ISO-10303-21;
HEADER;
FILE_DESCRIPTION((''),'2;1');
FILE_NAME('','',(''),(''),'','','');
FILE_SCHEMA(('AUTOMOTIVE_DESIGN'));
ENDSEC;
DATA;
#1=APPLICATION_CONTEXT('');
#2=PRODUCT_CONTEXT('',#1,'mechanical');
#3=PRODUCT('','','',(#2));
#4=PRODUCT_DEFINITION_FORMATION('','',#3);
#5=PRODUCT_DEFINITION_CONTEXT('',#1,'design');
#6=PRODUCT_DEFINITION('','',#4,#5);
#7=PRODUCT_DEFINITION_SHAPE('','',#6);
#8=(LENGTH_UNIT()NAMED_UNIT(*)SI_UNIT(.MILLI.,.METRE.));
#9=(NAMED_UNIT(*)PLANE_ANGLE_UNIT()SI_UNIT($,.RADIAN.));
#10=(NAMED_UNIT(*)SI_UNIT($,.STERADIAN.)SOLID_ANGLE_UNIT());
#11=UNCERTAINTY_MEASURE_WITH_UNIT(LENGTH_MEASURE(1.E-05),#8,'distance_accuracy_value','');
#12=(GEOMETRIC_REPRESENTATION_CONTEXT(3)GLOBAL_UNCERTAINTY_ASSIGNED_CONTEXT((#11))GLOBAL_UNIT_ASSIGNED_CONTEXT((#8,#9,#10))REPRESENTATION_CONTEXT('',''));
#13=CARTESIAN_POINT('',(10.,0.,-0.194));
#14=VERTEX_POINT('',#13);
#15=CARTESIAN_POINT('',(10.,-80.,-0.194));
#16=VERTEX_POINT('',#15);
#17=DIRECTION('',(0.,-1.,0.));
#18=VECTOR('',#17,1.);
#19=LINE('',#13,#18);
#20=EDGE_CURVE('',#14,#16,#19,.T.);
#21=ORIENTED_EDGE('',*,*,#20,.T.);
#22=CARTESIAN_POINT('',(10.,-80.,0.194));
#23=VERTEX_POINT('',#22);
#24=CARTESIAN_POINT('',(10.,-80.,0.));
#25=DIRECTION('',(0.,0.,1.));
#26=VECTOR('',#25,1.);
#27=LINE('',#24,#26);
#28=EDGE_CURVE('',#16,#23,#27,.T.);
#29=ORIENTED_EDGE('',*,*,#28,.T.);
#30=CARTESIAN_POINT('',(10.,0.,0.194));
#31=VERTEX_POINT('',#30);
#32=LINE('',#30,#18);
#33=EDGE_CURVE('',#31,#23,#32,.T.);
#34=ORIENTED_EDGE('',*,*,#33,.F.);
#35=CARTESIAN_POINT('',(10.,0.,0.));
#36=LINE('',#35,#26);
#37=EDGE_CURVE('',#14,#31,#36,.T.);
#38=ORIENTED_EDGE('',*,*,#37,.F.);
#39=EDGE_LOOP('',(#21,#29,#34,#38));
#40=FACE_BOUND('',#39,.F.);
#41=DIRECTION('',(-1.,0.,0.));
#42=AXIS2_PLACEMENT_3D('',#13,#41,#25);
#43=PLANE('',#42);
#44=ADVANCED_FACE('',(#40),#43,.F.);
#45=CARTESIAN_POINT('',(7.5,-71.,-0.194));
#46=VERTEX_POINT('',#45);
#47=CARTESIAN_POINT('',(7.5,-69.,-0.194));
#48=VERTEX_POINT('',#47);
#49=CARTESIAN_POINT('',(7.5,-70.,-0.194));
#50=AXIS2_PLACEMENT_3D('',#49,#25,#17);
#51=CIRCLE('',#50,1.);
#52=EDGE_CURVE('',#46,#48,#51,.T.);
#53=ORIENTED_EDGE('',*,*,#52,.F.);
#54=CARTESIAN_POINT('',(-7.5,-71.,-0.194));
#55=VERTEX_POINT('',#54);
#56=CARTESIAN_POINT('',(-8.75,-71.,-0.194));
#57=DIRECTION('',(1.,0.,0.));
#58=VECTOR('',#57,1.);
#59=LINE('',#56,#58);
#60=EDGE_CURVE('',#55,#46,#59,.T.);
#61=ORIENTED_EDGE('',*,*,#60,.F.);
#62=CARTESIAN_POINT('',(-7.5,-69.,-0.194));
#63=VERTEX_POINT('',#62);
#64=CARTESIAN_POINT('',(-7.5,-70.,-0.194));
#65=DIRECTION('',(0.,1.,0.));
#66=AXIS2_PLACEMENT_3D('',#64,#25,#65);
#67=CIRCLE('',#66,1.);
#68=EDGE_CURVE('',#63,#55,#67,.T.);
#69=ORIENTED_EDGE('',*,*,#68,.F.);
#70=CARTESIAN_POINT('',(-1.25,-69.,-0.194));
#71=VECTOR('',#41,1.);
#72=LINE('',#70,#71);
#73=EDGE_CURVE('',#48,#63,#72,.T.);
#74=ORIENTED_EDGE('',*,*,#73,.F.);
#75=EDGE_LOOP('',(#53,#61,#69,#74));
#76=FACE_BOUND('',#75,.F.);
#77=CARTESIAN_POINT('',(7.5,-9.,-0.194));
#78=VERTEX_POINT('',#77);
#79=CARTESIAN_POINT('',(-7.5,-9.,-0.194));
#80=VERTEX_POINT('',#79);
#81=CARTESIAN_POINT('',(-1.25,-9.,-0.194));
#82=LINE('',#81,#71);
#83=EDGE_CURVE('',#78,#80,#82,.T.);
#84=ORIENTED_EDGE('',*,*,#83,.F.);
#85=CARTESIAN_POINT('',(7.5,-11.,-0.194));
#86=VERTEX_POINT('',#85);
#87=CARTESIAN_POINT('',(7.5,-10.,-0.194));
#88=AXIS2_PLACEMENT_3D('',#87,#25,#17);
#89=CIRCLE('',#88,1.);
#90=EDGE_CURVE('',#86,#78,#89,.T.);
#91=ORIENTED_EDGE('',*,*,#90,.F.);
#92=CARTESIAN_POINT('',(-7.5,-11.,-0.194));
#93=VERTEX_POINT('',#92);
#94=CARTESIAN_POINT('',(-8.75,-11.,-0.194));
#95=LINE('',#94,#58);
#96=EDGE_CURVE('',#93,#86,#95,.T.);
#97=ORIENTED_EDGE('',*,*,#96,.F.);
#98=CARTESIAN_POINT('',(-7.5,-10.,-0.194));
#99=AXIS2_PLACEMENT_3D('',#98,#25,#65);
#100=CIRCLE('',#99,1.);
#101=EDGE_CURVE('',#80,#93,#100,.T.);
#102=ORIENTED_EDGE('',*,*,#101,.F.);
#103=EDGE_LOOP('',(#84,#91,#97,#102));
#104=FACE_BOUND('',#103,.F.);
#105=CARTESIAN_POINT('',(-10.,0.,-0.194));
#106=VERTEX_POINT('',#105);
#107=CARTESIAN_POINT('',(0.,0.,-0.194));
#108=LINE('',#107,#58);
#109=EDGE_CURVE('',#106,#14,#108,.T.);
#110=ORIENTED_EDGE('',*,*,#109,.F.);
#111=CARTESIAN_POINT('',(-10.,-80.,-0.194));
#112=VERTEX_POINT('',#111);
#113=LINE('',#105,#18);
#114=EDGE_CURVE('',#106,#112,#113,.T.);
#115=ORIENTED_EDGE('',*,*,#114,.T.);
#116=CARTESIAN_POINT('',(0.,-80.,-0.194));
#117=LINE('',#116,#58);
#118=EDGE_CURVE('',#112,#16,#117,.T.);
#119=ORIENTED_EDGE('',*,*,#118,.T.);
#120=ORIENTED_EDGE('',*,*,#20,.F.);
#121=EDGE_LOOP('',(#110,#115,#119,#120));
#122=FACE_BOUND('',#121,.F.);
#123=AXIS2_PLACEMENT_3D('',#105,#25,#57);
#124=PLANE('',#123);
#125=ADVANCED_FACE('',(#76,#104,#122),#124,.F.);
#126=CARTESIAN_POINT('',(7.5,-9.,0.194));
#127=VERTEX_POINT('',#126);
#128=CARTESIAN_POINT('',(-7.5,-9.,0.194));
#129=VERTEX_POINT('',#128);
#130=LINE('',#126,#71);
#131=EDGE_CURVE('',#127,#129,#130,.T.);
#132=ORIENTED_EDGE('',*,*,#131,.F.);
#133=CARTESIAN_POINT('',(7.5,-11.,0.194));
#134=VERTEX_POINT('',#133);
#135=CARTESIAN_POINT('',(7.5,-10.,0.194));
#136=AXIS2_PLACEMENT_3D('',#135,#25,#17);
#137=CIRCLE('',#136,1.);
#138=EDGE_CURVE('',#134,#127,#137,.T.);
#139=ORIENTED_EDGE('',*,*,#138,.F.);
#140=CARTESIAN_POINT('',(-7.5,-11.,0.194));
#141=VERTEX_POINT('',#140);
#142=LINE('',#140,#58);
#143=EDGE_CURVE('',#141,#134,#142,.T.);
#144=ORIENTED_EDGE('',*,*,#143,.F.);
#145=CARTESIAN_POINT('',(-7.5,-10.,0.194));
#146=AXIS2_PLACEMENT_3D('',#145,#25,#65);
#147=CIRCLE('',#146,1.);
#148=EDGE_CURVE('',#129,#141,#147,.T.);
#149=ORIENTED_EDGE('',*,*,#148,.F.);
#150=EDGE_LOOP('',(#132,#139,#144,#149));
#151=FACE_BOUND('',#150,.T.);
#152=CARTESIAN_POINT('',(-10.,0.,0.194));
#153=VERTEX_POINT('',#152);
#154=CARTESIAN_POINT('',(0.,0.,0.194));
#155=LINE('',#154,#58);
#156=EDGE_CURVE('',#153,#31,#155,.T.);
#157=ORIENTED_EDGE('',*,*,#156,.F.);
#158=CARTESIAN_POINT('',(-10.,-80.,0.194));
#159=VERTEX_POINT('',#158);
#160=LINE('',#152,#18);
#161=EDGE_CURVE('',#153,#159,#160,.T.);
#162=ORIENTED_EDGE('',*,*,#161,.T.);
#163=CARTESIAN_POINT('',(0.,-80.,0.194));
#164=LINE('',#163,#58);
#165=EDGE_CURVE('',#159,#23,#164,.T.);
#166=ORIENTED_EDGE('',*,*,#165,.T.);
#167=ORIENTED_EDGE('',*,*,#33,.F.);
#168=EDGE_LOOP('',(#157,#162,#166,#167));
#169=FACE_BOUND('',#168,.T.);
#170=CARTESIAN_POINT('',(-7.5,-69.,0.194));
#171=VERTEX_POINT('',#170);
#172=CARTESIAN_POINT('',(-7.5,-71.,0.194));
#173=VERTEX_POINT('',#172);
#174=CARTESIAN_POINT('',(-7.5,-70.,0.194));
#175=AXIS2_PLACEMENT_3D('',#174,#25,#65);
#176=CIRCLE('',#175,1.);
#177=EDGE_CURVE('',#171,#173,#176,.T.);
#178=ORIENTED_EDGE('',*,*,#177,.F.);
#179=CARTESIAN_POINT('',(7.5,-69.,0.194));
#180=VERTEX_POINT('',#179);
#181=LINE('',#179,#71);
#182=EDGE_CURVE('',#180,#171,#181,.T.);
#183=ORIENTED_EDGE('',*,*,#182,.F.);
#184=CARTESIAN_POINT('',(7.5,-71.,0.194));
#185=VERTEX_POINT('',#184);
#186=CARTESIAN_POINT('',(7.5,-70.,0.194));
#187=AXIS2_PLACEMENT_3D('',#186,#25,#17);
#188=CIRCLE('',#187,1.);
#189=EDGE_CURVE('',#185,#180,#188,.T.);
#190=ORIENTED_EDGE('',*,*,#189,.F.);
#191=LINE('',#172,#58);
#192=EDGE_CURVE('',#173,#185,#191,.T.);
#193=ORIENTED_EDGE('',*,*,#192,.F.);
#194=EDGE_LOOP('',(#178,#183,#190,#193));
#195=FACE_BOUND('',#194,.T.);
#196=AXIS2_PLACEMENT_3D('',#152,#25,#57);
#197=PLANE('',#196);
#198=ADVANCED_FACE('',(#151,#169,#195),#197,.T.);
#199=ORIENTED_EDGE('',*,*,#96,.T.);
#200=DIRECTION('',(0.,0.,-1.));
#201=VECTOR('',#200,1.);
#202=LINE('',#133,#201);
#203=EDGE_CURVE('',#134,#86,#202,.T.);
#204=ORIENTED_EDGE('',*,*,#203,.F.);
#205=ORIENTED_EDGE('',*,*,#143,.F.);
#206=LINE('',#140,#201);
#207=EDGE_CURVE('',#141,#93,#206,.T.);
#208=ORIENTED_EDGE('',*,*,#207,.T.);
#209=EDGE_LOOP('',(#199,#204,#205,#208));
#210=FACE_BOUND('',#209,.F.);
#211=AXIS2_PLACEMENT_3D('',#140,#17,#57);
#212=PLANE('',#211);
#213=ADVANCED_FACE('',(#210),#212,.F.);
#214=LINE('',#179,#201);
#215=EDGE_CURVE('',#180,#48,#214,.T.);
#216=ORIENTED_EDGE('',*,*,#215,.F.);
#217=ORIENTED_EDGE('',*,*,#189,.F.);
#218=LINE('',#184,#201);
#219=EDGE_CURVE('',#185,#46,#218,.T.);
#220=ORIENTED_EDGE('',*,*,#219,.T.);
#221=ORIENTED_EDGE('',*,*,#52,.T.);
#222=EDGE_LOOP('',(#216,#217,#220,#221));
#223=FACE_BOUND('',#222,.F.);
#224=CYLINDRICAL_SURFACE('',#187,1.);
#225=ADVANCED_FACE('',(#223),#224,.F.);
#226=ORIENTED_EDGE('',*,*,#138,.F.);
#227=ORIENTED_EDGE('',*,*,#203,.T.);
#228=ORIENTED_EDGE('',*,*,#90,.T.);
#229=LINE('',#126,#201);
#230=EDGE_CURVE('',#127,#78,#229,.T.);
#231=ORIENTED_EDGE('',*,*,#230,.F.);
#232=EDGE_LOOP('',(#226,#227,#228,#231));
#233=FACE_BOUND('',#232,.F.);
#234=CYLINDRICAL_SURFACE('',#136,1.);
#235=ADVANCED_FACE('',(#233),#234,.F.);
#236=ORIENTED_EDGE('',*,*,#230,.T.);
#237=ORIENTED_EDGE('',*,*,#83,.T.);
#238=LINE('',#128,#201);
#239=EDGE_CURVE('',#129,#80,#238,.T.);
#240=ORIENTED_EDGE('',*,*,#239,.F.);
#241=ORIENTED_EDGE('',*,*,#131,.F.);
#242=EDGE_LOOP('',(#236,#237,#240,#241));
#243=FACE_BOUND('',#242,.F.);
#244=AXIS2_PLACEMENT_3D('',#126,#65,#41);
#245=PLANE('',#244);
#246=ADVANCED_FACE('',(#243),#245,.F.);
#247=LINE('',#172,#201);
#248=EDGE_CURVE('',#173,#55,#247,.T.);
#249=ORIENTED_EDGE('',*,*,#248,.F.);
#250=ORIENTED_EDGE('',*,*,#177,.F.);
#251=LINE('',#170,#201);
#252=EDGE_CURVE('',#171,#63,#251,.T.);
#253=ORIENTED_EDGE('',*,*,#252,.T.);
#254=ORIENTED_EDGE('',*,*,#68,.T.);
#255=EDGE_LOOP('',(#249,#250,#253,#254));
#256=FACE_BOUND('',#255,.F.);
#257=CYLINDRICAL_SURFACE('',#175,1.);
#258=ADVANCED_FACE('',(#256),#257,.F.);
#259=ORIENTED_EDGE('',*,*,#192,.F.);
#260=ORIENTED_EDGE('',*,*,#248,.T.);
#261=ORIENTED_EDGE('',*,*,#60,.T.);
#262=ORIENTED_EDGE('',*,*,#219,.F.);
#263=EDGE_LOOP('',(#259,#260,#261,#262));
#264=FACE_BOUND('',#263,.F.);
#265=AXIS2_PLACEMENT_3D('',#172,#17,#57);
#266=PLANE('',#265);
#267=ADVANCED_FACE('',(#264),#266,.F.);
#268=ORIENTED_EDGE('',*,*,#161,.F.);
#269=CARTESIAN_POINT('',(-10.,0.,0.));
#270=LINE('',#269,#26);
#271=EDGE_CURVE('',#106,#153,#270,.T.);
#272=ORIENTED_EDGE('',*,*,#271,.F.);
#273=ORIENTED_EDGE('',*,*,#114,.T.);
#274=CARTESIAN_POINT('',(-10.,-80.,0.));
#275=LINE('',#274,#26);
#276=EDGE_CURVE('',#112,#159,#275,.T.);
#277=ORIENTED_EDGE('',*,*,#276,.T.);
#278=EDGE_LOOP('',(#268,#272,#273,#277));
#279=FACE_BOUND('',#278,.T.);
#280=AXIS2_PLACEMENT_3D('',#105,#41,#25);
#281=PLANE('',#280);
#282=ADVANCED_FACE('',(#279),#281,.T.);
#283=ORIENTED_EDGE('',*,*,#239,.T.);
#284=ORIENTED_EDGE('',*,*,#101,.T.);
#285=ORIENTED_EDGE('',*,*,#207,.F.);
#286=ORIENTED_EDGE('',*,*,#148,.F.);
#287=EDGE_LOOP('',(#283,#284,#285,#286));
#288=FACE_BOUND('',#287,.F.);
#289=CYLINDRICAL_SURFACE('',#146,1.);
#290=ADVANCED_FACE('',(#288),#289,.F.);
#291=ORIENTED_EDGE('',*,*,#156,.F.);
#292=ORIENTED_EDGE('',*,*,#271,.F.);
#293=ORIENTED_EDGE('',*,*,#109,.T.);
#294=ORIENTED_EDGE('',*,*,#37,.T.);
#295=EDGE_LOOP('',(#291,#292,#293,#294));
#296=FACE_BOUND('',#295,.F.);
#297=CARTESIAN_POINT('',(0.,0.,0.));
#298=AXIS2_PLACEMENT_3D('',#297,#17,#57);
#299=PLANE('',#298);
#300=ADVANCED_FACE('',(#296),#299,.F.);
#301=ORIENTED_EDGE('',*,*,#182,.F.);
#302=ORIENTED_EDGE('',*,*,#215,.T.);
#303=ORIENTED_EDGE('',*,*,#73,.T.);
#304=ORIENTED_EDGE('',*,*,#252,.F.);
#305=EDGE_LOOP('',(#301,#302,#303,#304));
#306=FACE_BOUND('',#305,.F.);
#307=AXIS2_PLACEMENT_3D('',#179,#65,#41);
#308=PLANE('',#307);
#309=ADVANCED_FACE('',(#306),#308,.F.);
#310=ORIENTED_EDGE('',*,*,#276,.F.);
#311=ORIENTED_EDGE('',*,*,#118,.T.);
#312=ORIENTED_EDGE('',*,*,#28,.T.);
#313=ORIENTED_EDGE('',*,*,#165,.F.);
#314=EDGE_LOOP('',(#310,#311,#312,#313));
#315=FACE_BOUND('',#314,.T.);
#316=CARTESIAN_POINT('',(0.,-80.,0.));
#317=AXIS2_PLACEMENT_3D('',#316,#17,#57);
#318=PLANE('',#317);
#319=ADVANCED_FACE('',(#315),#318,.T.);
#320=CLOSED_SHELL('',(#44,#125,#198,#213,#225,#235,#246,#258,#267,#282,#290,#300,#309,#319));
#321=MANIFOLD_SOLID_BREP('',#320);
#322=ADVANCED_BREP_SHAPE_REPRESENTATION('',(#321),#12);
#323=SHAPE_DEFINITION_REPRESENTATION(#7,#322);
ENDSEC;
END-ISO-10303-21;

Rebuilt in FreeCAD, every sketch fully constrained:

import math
import FreeCAD as App
import Part
import Sketcher
from FreeCAD import Vector


def add_polygon(sketch, points):
    """Adds a closed chain of lines whose ends are joined by coincident constraints."""
    first, n = sketch.GeometryCount, len(points)
    for a, b in zip(points, points[1:] + points[:1]):
        sketch.addGeometry(Part.LineSegment(App.Vector(*a, 0), App.Vector(*b, 0)), False)
    for i in range(n):
        sketch.addConstraint(Sketcher.Constraint("Coincident", first + i, 2, first + (i + 1) % n, 1))

doc = App.newDocument("Part")
body = doc.addObject("PartDesign::Body", "Body")

sketch1 = body.newObject("Sketcher::SketchObject", "Sketch")
sketch1.AttachmentSupport = (doc.getObject("XZ_Plane"), [""])
sketch1.MapMode = "FlatFace"
add_polygon(sketch1, [(-10, 0.19), (-10, -0.19), (10, -0.19), (10, 0.19)])
sketch1.addConstraint([
    Sketcher.Constraint("Vertical", 0),
    Sketcher.Constraint("Horizontal", 1),
    Sketcher.Constraint("Vertical", 2),
    Sketcher.Constraint("Horizontal", 3),
    Sketcher.Constraint("Symmetric", 0, 2, 2, 2, -1, 1),
    Sketcher.Constraint("DistanceX", 1, 1, 1, 2, 20.0),
    Sketcher.Constraint("DistanceY", 0, 2, 0, 1, 0.388),
])
pad1 = body.newObject("PartDesign::Pad", "Pad")
pad1.Profile = sketch1
pad1.Length = 80

sketch2 = body.newObject("Sketcher::SketchObject", "Sketch001")
sketch2.AttachmentSupport = (doc.getObject("XY_Plane"), [""])
sketch2.MapMode = "FlatFace"
sketch2.AttachmentOffset = App.Placement(Vector(0, 0, 0.194), App.Rotation())
sketch2.addGeometry([
    Part.ArcOfCircle(Part.Circle(Vector(-7.5, -10, 0), Vector(0, 0, 1), 1), math.radians(90), math.radians(270)),
    Part.LineSegment(Vector(-7.5, -11, 0), Vector(7.5, -11, 0)),
    Part.ArcOfCircle(Part.Circle(Vector(7.5, -10, 0), Vector(0, 0, 1), 1), math.radians(-90), math.radians(90)),
    Part.LineSegment(Vector(7.5, -9, 0), Vector(-7.5, -9, 0)),
    Part.ArcOfCircle(Part.Circle(Vector(-7.5, -70, 0), Vector(0, 0, 1), 1), math.radians(90), math.radians(270)),
    Part.LineSegment(Vector(-7.5, -71, 0), Vector(7.5, -71, 0)),
    Part.ArcOfCircle(Part.Circle(Vector(7.5, -70, 0), Vector(0, 0, 1), 1), math.radians(-90), math.radians(90)),
    Part.LineSegment(Vector(7.5, -69, 0), Vector(-7.5, -69, 0)),
], False)
sketch2.addConstraint([
    Sketcher.Constraint("Tangent", 0, 2, 1, 1),
    Sketcher.Constraint("Tangent", 1, 2, 2, 1),
    Sketcher.Constraint("Tangent", 2, 2, 3, 1),
    Sketcher.Constraint("Tangent", 3, 2, 0, 1),
    Sketcher.Constraint("Tangent", 4, 2, 5, 1),
    Sketcher.Constraint("Tangent", 5, 2, 6, 1),
    Sketcher.Constraint("Tangent", 6, 2, 7, 1),
    Sketcher.Constraint("Tangent", 7, 2, 4, 1),
    Sketcher.Constraint("Horizontal", 1),
    Sketcher.Constraint("Horizontal", 3),
    Sketcher.Constraint("Horizontal", 5),
    Sketcher.Constraint("Horizontal", 7),
    Sketcher.Constraint("Equal", 2, 4),
    Sketcher.Constraint("Vertical", 0, 3, 4, 3),
    Sketcher.Constraint("Vertical", 2, 3, 6, 3),
    Sketcher.Constraint("Radius", 0, 1.0),
    Sketcher.Constraint("DistanceX", 1, 1, 1, 2, 15.0),
    Sketcher.Constraint("DistanceY", 0, 3, -1, 1, 10.0),
    Sketcher.Constraint("DistanceY", 4, 3, -1, 1, 70.0),
    Sketcher.Constraint("DistanceX", 0, 3, -1, 1, 7.5),
])
pocket1 = body.newObject("PartDesign::Pocket", "Pocket")
pocket1.Profile = sketch2
pocket1.Length = 25

doc.recompute()
